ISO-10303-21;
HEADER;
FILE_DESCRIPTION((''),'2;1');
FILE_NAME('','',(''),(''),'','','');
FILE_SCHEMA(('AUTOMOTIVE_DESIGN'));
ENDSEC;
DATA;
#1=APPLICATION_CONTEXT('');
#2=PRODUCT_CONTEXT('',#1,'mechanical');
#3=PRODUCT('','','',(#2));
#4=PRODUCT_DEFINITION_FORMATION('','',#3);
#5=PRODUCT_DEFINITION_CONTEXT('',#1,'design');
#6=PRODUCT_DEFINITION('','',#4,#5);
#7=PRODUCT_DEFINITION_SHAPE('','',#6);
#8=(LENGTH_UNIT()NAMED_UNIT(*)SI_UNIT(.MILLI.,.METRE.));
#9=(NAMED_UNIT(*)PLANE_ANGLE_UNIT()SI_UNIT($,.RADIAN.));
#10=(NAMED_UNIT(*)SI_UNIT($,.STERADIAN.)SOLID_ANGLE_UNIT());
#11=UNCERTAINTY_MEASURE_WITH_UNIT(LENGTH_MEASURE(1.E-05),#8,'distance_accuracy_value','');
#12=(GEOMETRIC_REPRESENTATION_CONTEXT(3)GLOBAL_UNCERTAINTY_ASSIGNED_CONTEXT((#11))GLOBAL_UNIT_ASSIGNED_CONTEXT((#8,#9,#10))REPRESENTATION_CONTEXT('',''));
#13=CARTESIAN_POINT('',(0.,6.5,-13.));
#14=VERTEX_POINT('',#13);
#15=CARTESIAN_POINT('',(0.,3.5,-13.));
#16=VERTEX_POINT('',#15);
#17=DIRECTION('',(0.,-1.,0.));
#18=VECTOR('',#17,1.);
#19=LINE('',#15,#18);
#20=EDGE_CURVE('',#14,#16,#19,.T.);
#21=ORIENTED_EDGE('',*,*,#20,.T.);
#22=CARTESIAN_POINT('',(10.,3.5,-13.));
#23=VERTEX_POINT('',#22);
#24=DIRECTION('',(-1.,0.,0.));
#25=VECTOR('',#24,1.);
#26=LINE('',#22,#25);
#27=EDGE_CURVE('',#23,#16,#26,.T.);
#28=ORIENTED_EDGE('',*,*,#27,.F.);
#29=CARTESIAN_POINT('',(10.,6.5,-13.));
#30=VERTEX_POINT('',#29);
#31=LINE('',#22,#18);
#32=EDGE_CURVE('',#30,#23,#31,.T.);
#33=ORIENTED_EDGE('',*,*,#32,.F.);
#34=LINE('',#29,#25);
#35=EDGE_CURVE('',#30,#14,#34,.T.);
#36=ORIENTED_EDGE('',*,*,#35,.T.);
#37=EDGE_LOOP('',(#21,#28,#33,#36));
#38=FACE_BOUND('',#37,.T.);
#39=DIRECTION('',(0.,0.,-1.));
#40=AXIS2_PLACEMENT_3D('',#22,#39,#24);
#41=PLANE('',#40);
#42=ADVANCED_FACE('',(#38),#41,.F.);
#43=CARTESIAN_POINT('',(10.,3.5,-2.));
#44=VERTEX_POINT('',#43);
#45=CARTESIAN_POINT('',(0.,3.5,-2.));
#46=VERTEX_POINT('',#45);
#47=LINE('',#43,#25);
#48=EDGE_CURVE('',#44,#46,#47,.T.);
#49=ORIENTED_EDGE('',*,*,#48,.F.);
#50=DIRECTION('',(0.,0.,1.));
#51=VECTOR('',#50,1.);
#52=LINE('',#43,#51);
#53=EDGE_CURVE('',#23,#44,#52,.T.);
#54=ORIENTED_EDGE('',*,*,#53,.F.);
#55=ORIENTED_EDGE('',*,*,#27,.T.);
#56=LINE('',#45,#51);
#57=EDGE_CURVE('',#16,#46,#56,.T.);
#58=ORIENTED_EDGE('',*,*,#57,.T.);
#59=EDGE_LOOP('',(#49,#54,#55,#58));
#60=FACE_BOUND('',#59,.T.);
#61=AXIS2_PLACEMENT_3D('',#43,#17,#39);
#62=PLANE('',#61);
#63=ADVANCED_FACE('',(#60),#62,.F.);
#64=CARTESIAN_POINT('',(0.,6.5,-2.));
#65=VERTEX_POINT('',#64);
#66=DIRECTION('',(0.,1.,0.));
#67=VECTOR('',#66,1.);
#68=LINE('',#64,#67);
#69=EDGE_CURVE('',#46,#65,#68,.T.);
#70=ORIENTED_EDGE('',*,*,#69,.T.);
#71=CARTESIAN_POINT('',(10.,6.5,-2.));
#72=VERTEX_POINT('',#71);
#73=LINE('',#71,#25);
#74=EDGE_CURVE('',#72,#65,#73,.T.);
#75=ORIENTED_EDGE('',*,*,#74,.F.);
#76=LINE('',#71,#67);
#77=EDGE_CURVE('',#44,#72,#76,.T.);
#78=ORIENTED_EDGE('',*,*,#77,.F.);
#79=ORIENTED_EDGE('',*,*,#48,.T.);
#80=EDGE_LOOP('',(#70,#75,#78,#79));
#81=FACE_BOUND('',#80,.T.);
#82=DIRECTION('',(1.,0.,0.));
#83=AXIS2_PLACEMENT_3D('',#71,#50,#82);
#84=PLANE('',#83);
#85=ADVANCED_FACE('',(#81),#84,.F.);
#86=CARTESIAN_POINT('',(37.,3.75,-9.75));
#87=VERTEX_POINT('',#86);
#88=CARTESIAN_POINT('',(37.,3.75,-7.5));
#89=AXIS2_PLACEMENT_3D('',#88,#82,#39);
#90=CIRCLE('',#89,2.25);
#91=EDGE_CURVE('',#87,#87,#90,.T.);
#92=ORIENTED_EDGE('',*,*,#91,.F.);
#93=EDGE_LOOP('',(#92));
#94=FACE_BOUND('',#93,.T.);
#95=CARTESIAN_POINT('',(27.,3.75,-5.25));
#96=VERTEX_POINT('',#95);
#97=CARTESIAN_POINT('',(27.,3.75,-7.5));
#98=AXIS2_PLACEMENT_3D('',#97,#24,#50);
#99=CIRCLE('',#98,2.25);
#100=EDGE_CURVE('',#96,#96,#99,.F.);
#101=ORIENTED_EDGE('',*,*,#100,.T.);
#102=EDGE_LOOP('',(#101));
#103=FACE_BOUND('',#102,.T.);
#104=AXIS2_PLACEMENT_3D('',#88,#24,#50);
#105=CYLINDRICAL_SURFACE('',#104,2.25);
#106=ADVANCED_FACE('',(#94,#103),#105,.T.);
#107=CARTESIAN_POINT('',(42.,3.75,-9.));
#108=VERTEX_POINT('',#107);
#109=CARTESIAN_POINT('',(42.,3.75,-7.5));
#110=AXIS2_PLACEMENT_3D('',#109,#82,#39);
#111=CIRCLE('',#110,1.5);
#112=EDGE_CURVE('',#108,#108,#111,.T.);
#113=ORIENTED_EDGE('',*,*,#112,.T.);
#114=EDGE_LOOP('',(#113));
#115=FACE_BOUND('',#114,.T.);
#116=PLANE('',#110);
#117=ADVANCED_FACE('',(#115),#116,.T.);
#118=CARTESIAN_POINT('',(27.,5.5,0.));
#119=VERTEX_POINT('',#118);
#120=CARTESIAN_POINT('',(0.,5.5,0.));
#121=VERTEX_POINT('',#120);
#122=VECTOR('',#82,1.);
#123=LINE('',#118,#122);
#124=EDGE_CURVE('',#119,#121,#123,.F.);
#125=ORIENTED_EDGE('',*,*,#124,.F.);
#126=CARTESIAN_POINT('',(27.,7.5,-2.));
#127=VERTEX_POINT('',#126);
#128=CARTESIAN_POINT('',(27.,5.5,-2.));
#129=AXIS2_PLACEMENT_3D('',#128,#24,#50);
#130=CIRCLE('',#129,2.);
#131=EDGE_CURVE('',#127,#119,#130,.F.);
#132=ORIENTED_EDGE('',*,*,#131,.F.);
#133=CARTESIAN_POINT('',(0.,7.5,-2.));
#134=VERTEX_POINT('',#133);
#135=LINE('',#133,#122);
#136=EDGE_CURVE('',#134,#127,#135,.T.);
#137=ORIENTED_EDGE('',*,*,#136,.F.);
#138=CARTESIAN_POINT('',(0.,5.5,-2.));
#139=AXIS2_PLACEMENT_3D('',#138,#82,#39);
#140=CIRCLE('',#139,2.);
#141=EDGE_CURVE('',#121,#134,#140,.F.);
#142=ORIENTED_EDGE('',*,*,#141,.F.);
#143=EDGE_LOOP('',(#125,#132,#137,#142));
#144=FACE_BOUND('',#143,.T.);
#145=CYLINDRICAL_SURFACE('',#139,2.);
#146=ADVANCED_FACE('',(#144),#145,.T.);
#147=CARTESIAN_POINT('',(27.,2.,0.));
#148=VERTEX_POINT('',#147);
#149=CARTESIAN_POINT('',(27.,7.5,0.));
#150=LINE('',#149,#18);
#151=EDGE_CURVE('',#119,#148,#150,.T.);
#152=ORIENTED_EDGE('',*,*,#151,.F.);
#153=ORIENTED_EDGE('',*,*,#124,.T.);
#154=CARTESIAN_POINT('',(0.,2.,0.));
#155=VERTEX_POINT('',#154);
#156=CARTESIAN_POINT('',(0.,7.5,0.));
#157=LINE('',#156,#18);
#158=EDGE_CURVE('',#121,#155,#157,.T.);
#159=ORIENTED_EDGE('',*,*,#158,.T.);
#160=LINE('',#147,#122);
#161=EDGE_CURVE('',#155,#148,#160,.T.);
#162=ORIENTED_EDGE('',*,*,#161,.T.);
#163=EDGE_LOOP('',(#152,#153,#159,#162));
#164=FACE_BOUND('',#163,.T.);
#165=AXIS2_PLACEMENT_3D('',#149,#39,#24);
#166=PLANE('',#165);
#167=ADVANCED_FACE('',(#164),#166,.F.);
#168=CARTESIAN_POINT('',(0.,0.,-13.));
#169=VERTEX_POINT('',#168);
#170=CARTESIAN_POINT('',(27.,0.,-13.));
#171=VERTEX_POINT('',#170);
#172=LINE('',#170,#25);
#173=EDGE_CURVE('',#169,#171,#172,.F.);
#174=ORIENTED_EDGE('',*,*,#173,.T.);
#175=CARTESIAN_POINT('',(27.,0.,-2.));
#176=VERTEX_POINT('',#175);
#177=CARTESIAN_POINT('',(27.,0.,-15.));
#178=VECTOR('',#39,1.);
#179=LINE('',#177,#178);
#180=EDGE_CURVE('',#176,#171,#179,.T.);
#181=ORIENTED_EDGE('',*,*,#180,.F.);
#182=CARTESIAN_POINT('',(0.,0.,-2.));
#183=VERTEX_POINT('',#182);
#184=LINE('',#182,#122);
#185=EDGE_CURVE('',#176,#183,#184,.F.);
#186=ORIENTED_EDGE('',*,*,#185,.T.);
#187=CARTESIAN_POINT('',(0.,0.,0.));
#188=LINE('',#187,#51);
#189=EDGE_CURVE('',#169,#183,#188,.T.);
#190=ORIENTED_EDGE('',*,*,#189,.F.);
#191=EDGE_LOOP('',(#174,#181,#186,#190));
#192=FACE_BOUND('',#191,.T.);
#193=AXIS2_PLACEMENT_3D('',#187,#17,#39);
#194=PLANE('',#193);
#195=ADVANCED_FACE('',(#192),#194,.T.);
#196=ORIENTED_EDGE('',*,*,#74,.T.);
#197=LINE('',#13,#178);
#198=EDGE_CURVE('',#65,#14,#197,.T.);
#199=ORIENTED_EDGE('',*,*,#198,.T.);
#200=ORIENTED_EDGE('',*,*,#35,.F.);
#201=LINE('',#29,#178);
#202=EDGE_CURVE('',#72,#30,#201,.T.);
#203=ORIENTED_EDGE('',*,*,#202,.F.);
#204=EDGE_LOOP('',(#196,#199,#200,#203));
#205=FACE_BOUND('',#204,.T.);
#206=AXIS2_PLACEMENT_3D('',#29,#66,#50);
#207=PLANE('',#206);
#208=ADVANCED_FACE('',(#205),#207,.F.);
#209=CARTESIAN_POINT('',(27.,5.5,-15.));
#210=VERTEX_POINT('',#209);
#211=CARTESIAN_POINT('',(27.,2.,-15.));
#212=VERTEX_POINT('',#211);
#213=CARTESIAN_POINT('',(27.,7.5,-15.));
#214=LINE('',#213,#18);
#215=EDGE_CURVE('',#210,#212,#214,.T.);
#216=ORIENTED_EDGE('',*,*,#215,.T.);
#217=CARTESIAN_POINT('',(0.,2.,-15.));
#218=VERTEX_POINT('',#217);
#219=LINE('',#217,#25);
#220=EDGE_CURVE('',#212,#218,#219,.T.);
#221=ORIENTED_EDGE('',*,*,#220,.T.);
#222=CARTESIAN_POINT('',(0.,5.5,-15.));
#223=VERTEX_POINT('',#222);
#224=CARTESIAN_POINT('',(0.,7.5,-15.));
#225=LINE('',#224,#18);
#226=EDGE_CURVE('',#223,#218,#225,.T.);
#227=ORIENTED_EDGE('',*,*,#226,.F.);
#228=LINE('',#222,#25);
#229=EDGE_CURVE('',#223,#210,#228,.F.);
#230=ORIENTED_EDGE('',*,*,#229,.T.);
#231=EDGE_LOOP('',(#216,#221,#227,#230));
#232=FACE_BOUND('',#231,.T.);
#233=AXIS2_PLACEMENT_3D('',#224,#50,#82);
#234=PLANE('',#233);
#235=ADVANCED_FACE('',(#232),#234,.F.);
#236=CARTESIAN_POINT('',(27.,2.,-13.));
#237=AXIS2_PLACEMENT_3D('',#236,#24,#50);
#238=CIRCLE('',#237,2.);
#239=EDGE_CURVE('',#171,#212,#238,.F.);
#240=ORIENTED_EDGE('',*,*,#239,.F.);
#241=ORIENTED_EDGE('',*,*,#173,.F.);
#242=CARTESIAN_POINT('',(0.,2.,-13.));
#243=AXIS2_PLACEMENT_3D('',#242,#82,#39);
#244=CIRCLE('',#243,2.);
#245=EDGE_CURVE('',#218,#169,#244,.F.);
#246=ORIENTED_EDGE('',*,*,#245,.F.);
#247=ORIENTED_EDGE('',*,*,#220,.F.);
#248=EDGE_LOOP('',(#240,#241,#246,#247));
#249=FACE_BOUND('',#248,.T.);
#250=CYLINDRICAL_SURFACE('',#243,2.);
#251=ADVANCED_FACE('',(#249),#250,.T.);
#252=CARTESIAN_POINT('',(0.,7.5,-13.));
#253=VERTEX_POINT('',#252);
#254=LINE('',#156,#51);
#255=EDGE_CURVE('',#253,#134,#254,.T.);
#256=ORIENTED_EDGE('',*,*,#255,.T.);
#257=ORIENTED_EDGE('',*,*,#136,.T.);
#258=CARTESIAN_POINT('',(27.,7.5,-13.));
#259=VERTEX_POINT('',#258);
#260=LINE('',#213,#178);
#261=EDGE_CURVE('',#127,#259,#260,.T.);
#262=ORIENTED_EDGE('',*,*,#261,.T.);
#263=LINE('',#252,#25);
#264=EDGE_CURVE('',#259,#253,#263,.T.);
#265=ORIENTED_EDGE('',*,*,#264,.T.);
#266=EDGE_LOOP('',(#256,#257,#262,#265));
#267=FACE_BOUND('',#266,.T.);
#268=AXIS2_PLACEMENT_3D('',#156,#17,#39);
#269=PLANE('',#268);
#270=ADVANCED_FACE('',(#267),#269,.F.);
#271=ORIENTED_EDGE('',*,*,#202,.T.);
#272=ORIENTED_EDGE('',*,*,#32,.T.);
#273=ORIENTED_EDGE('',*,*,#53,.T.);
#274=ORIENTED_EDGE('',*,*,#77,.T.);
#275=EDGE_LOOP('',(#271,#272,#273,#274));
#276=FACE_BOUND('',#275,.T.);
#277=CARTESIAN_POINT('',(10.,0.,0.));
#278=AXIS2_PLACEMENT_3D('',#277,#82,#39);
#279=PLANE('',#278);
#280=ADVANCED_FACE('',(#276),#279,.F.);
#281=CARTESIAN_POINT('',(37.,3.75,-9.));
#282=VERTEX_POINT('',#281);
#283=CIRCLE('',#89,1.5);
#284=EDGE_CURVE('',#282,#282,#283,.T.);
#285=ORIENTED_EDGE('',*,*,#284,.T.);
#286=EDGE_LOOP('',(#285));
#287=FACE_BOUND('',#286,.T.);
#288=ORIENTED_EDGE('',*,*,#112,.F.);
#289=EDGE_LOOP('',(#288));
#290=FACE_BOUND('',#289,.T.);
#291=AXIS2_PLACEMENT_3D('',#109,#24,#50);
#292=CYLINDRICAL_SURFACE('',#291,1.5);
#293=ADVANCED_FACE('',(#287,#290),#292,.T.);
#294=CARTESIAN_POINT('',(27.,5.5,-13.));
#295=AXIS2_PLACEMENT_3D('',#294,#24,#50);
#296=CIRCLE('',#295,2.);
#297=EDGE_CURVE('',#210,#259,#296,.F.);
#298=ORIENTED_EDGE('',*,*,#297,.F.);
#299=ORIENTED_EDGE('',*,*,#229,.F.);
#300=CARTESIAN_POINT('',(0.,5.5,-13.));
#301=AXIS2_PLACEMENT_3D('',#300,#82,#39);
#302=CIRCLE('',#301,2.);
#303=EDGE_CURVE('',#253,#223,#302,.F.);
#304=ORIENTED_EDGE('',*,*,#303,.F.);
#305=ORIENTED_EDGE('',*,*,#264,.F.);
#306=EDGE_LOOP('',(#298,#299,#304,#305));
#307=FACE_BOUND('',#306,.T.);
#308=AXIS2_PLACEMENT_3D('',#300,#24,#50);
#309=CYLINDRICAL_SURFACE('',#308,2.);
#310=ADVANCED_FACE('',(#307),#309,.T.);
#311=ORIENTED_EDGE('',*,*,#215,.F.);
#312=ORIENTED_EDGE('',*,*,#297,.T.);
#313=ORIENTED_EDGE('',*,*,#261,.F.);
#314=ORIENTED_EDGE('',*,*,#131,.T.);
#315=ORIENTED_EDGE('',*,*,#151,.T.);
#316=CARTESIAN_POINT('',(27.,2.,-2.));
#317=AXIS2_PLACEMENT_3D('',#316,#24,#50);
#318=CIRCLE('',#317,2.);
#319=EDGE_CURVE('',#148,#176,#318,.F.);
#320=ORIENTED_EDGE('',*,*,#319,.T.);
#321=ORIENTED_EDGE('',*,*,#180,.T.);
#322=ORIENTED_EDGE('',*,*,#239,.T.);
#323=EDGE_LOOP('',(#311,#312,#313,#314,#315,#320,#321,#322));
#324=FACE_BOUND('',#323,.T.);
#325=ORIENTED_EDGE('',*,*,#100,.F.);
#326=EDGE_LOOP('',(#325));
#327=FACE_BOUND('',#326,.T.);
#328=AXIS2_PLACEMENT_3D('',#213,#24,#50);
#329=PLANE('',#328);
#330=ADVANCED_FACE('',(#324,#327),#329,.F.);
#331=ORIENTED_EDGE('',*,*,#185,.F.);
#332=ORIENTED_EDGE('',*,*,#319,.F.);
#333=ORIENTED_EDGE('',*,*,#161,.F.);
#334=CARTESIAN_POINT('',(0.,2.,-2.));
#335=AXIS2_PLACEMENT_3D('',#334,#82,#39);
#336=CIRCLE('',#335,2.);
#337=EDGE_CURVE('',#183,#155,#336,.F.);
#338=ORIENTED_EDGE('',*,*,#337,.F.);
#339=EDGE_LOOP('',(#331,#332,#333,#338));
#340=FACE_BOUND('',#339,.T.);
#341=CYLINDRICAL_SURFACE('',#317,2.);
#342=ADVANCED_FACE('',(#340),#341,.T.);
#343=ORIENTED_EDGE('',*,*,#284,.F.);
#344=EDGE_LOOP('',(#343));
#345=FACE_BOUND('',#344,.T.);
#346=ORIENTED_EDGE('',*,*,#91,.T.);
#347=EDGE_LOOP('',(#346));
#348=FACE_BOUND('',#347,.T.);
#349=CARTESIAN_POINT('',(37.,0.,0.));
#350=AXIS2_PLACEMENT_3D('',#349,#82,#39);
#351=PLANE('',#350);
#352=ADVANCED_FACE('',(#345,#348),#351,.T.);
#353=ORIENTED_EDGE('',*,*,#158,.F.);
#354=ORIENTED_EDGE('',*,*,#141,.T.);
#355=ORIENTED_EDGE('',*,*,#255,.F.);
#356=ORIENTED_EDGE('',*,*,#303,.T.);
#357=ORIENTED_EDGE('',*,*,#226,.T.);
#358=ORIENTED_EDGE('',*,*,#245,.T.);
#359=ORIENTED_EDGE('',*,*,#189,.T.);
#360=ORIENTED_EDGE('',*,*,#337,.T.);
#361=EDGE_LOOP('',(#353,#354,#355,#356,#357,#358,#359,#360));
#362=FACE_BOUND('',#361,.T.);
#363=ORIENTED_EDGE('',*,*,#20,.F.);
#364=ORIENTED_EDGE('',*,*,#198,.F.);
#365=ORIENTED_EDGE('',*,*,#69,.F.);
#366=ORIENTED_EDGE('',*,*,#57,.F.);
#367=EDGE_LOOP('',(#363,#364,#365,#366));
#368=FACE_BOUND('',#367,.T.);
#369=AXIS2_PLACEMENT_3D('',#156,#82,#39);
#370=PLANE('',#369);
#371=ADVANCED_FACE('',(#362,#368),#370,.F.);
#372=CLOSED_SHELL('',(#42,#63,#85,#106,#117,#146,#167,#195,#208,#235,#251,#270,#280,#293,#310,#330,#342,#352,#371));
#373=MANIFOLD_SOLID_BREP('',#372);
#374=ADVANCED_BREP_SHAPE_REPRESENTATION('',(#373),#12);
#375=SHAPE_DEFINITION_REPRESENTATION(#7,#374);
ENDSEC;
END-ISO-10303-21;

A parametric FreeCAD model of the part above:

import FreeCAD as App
import Part
import Sketcher

V = App.Vector


def edges_at(feature, points):
    """Names of the edges that pass closest to the given points."""
    edges = feature.Shape.Edges
    near = lambda p: min(range(len(edges)), key=lambda i: edges[i].distToShape(Part.Vertex(*p))[0])
    return sorted({f"Edge{near(p) + 1}" for p in points})

doc = App.newDocument("Part")
body = doc.addObject("PartDesign::Body", "Body")

# Sketch on XZ plane
sketch1 = body.newObject("Sketcher::SketchObject", "Sketch")
sketch1.AttachmentSupport = (doc.getObject("XZ_Plane"), [""])
sketch1.MapMode = "FlatFace"
sketch1.addGeometry(Part.LineSegment(V(0, -15, 0), V(0, 0, 0)), False)
sketch1.addGeometry(Part.LineSegment(V(0, 0, 0), V(27, 0, 0)), False)
sketch1.addGeometry(Part.LineSegment(V(27, 0, 0), V(27, -15, 0)), False)
sketch1.addGeometry(Part.LineSegment(V(27, -15, 0), V(0, -15, 0)), False)
sketch1.addConstraint(Sketcher.Constraint("Coincident", 0, 2, 1, 1))
sketch1.addConstraint(Sketcher.Constraint("Coincident", 1, 2, 2, 1))
sketch1.addConstraint(Sketcher.Constraint("Coincident", 2, 2, 3, 1))
sketch1.addConstraint(Sketcher.Constraint("Coincident", 3, 2, 0, 1))
sketch1.addConstraint(Sketcher.Constraint("Vertical", 0))
sketch1.addConstraint(Sketcher.Constraint("Horizontal", 1))
sketch1.addConstraint(Sketcher.Constraint("Vertical", 2))
sketch1.addConstraint(Sketcher.Constraint("Horizontal", 3))
sketch1.addConstraint(Sketcher.Constraint("Coincident", 0, 2, -1, 1))
sketch1.addConstraint(Sketcher.Constraint("DistanceX", 1, 1, 1, 2, 27.0))
sketch1.addConstraint(Sketcher.Constraint("DistanceY", 0, 1, 0, 2, 15.0))
pad1 = body.newObject("PartDesign::Pad", "Pad")
pad1.Profile = sketch1
pad1.Length = 7.5
pad1.Reversed = True

# Sketch on YZ plane
sketch2 = body.newObject("Sketcher::SketchObject", "Sketch001")
sketch2.AttachmentSupport = (doc.getObject("YZ_Plane"), [""])
sketch2.MapMode = "FlatFace"
sketch2.AttachmentOffset = App.Placement(V(0, 0, 27), App.Rotation())
sketch2.addGeometry(Part.Circle(V(3.8, -7.5, 0), V(0, 0, 1), 2.2), False)
sketch2.addConstraint(Sketcher.Constraint("Diameter", 0, 4.5))
sketch2.addConstraint(Sketcher.Constraint("DistanceY", 0, 3, -1, 1, 7.5))
sketch2.addConstraint(Sketcher.Constraint("DistanceX", -1, 1, 0, 3, 3.75))
pad2 = body.newObject("PartDesign::Pad", "Pad001")
pad2.Profile = sketch2
pad2.Length = 10

# Sketch on YZ plane
sketch3 = body.newObject("Sketcher::SketchObject", "Sketch002")
sketch3.AttachmentSupport = (doc.getObject("YZ_Plane"), [""])
sketch3.MapMode = "FlatFace"
sketch3.AttachmentOffset = App.Placement(V(0, 0, 37), App.Rotation())
sketch3.addGeometry(Part.Circle(V(3.8, -7.5, 0), V(0, 0, 1), 1.5), False)
sketch3.addConstraint(Sketcher.Constraint("Diameter", 0, 3.0))
sketch3.addConstraint(Sketcher.Constraint("DistanceY", 0, 3, -1, 1, 7.5))
sketch3.addConstraint(Sketcher.Constraint("DistanceX", -1, 1, 0, 3, 3.75))
pad3 = body.newObject("PartDesign::Pad", "Pad002")
pad3.Profile = sketch3
pad3.Length = 5
doc.recompute()

fillet = body.newObject("PartDesign::Fillet", "Fillet")
fillet.Base = (pad3, edges_at(pad3, [
    (13.5, 7.5, -15),
    (13.5, 7.5, 0),
    (13.5, 0, -15),
    (13.5, 0, 0),
]))
fillet.Radius = 2

# Sketch on YZ plane
sketch4 = body.newObject("Sketcher::SketchObject", "Sketch003")
sketch4.AttachmentSupport = (doc.getObject("YZ_Plane"), [""])
sketch4.MapMode = "FlatFace"
sketch4.addGeometry(Part.LineSegment(V(6.5, -13, 0), V(3.5, -13, 0)), False)
sketch4.addGeometry(Part.LineSegment(V(3.5, -13, 0), V(3.5, -2, 0)), False)
sketch4.addGeometry(Part.LineSegment(V(3.5, -2, 0), V(6.5, -2, 0)), False)
sketch4.addGeometry(Part.LineSegment(V(6.5, -2, 0), V(6.5, -13, 0)), False)
sketch4.addConstraint(Sketcher.Constraint("Coincident", 0, 2, 1, 1))
sketch4.addConstraint(Sketcher.Constraint("Coincident", 1, 2, 2, 1))
sketch4.addConstraint(Sketcher.Constraint("Coincident", 2, 2, 3, 1))
sketch4.addConstraint(Sketcher.Constraint("Coincident", 3, 2, 0, 1))
sketch4.addConstraint(Sketcher.Constraint("Horizontal", 0))
sketch4.addConstraint(Sketcher.Constraint("Vertical", 1))
sketch4.addConstraint(Sketcher.Constraint("Horizontal", 2))
sketch4.addConstraint(Sketcher.Constraint("Vertical", 3))
sketch4.addConstraint(Sketcher.Constraint("DistanceX", 0, 2, 0, 1, 3.0))
sketch4.addConstraint(Sketcher.Constraint("DistanceY", 1, 1, 1, 2, 11.0))
sketch4.addConstraint(Sketcher.Constraint("DistanceY", 0, 2, -1, 1, 13.0))
sketch4.addConstraint(Sketcher.Constraint("DistanceX", -1, 1, 0, 2, 3.5))
pocket1 = body.newObject("PartDesign::Pocket", "Pocket")
pocket1.Profile = sketch4
pocket1.Length = 10
pocket1.Reversed = True

doc.recompute()
